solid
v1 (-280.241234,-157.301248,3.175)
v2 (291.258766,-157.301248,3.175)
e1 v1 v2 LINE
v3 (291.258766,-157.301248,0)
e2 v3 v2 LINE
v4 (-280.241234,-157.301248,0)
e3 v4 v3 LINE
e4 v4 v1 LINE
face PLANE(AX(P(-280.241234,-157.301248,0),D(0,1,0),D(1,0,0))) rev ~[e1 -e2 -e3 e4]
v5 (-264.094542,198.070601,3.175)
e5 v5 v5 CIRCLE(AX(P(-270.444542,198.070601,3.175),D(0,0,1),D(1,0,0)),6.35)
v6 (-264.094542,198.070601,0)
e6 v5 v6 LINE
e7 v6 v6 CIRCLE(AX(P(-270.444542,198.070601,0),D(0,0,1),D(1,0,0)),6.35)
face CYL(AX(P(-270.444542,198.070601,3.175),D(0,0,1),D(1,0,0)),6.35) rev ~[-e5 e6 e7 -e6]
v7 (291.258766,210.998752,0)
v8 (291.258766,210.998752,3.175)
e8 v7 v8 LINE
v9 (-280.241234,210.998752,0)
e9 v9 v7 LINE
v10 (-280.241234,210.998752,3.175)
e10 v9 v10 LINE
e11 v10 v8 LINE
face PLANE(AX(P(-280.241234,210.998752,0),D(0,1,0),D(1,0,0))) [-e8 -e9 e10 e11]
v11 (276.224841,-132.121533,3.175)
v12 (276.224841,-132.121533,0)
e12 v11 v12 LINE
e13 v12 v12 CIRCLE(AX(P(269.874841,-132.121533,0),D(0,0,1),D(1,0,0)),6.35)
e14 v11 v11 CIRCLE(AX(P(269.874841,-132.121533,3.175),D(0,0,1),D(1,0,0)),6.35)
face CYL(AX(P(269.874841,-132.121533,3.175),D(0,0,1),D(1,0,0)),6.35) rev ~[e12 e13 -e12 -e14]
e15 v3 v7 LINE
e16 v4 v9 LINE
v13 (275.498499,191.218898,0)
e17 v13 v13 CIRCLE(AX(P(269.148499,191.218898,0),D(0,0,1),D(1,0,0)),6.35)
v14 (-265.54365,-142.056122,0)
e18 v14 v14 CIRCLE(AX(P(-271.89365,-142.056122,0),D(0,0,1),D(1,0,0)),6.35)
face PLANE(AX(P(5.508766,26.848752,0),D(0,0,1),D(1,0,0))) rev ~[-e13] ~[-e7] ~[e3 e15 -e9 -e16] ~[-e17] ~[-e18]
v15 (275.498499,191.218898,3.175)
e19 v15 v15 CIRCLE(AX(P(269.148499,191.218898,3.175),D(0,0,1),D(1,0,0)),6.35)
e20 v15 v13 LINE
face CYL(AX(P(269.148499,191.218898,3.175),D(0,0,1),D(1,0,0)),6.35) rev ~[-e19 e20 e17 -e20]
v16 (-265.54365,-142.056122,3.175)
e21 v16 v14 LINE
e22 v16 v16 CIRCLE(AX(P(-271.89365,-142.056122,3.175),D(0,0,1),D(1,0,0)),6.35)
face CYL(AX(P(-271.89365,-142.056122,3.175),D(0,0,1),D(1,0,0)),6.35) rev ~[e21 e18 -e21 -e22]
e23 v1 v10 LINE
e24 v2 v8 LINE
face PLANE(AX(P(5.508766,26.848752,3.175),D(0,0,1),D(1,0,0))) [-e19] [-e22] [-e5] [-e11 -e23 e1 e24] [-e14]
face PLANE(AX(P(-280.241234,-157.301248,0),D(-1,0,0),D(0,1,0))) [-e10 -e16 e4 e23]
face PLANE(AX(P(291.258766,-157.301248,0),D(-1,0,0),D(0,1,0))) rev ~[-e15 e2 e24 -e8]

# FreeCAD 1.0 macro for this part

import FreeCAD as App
import Part
import Sketcher

V = App.Vector
Q = App.Units.Quantity


def add_polygon(sketch, points):
    """Adds a closed chain of lines whose ends are joined by coincident constraints."""
    first, n = sketch.GeometryCount, len(points)
    for a, b in zip(points, points[1:] + points[:1]):
        sketch.addGeometry(Part.LineSegment(App.Vector(*a, 0), App.Vector(*b, 0)), False)
    for i in range(n):
        sketch.addConstraint(Sketcher.Constraint("Coincident", first + i, 2, first + (i + 1) % n, 1))

doc = App.newDocument("Part")
body = doc.addObject("PartDesign::Body", "Body")

sketch1 = body.newObject("Sketcher::SketchObject", "Sketch")
sketch1.AttachmentSupport = (doc.getObject("XY_Plane"), [""])
sketch1.MapMode = "FlatFace"
add_polygon(sketch1, [(-280, 211), (-280, -157), (291, -157), (291, 211)])
sketch1.addConstraint(Sketcher.Constraint("Vertical", 0))
sketch1.addConstraint(Sketcher.Constraint("Horizontal", 1))
sketch1.addConstraint(Sketcher.Constraint("Vertical", 2))
sketch1.addConstraint(Sketcher.Constraint("Horizontal", 3))
sketch1.addConstraint(Sketcher.Constraint("DistanceX", 1, 1, 1, 2, Q("22.5 in")))
sketch1.addConstraint(Sketcher.Constraint("DistanceY", 0, 2, 0, 1, Q("14.5 in")))
sketch1.addConstraint(Sketcher.Constraint("DistanceY", -1, 1, 2, 2, 210.998752))
sketch1.addConstraint(Sketcher.Constraint("DistanceX", 0, 2, -1, 1, 280.241234))
pad1 = body.newObject("PartDesign::Pad", "Pad")
pad1.Profile = sketch1
pad1.Length = Q("0.125 in")

sketch2 = body.newObject("Sketcher::SketchObject", "Sketch001")
sketch2.AttachmentSupport = (doc.getObject("XY_Plane"), [""])
sketch2.MapMode = "FlatFace"
sketch2.AttachmentOffset = App.Placement(V(0, 0, 0.125 * 25.4), App.Rotation())
sketch2.addGeometry(Part.Circle(V(-272, -142, 0), V(0, 0, 1), 6), False)
sketch2.addConstraint(Sketcher.Constraint("Diameter", 0, Q("0.5 in")))
sketch2.addConstraint(Sketcher.Constraint("DistanceX", 0, 3, -1, 1, 271.89365))
sketch2.addConstraint(Sketcher.Constraint("DistanceY", 0, 3, -1, 1, 142.056122))
pocket1 = body.newObject("PartDesign::Pocket", "Pocket")
pocket1.Profile = sketch2
pocket1.Length = Q("1 in")

sketch3 = body.newObject("Sketcher::SketchObject", "Sketch002")
sketch3.AttachmentSupport = (doc.getObject("XY_Plane"), [""])
sketch3.MapMode = "FlatFace"
sketch3.AttachmentOffset = App.Placement(V(0, 0, 0.125 * 25.4), App.Rotation())
sketch3.addGeometry(Part.Circle(V(-270, 198, 0), V(0, 0, 1), 6), False)
sketch3.addConstraint(Sketcher.Constraint("Diameter", 0, Q("0.5 in")))
sketch3.addConstraint(Sketcher.Constraint("DistanceY", -1, 1, 0, 3, 198.070601))
sketch3.addConstraint(Sketcher.Constraint("DistanceX", 0, 3, -1, 1, 270.444542))
pocket2 = body.newObject("PartDesign::Pocket", "Pocket001")
pocket2.Profile = sketch3
pocket2.Length = Q("1 in")

sketch4 = body.newObject("Sketcher::SketchObject", "Sketch003")
sketch4.AttachmentSupport = (doc.getObject("XY_Plane"), [""])
sketch4.MapMode = "FlatFace"
sketch4.AttachmentOffset = App.Placement(V(0, 0, 0.125 * 25.4), App.Rotation())
sketch4.addGeometry(Part.Circle(V(269, 191, 0), V(0, 0, 1), 6), False)
sketch4.addConstraint(Sketcher.Constraint("Diameter", 0, Q("0.5 in")))
sketch4.addConstraint(Sketcher.Constraint("DistanceX", -1, 1, 0, 3, 269.148499))
sketch4.addConstraint(Sketcher.Constraint("DistanceY", -1, 1, 0, 3, 191.218898))
pocket3 = body.newObject("PartDesign::Pocket", "Pocket002")
pocket3.Profile = sketch4
pocket3.Length = Q("1 in")

sketch5 = body.newObject("Sketcher::SketchObject", "Sketch004")
sketch5.AttachmentSupport = (doc.getObject("XY_Plane"), [""])
sketch5.MapMode = "FlatFace"
sketch5.AttachmentOffset = App.Placement(V(0, 0, 0.125 * 25.4), App.Rotation())
sketch5.addGeometry(Part.Circle(V(270, -132, 0), V(0, 0, 1), 6), False)
sketch5.addConstraint(Sketcher.Constraint("Diameter", 0, Q("0.5 in")))
sketch5.addConstraint(Sketcher.Constraint("DistanceX", -1, 1, 0, 3, 269.874841))
sketch5.addConstraint(Sketcher.Constraint("DistanceY", 0, 3, -1, 1, 132.121533))
pocket4 = body.newObject("PartDesign::Pocket", "Pocket003")
pocket4.Profile = sketch5
pocket4.Length = Q("1 in")

doc.recompute()
